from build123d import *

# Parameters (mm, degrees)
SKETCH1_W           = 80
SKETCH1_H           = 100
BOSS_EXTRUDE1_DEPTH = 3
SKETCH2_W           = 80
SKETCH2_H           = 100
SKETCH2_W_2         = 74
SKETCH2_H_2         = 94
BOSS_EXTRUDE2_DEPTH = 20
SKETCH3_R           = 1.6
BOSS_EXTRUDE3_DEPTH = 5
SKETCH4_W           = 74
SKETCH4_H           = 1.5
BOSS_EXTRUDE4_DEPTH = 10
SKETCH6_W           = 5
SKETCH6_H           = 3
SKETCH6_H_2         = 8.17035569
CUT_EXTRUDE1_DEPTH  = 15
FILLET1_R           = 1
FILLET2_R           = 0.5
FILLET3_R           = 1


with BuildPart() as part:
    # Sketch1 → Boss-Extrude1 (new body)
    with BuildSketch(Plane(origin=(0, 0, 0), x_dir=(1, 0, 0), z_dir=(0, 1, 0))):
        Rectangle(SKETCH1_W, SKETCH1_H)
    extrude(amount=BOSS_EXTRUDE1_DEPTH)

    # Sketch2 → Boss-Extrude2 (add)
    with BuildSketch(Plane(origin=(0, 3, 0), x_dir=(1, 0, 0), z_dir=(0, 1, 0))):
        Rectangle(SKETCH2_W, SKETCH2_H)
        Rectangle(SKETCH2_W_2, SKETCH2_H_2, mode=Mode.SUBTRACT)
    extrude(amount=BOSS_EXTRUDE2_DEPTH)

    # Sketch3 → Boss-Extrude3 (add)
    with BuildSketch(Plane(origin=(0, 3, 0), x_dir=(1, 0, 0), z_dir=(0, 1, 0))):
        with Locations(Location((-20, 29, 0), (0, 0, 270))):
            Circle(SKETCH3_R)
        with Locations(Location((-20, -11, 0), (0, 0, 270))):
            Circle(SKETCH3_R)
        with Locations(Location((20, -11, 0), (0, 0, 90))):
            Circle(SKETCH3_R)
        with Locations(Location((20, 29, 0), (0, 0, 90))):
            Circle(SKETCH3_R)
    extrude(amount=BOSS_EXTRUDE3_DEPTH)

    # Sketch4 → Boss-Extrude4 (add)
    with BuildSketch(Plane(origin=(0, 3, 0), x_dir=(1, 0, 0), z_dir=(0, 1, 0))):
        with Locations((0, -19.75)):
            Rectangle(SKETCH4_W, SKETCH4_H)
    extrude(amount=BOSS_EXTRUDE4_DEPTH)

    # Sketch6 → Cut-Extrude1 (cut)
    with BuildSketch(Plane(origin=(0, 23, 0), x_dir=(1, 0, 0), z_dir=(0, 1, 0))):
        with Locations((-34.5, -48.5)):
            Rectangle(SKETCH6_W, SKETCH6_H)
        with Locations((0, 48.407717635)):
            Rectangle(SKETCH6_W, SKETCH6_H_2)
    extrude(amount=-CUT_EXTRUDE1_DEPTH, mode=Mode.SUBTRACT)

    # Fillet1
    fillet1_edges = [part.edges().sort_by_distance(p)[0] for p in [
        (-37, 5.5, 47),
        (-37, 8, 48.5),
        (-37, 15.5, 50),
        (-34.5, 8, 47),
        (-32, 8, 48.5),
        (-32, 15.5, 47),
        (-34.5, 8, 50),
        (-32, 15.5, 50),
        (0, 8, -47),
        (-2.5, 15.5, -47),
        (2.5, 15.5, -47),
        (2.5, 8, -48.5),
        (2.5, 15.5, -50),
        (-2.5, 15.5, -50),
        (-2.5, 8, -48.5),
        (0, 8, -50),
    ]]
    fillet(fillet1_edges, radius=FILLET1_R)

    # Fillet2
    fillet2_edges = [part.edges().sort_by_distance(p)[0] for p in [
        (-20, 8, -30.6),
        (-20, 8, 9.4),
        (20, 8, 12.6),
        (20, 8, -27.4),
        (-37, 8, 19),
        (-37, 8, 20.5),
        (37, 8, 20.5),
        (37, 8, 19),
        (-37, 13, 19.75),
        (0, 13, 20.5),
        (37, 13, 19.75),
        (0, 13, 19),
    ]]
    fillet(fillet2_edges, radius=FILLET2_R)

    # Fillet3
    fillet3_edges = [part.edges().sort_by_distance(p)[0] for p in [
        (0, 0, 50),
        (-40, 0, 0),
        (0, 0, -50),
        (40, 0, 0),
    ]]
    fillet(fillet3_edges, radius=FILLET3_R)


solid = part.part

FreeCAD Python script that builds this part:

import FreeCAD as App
import Part
import Sketcher
Q = App.Units.Quantity


def edges_at(feature, points):
    """Names of the edges that pass closest to the given points."""
    edges = feature.Shape.Edges
    near = lambda p: min(range(len(edges)), key=lambda i: edges[i].distToShape(Part.Vertex(*p))[0])
    return sorted({f"Edge{near(p) + 1}" for p in points})

doc = App.newDocument("Part")
body = doc.addObject("PartDesign::Body", "Body")

# Sketch on XZ plane
sketch1 = doc.addObject("Sketcher::SketchObject", "Sketch")
body.addObject(sketch1)
sketch1.AttachmentSupport = (doc.XZ_Plane, [""])
sketch1.MapMode = "FlatFace"
sketch1.addGeometry(Part.LineSegment(App.Vector(-40, -50, 0), App.Vector(-40, 50, 0)), False)
sketch1.addGeometry(Part.LineSegment(App.Vector(-40, 50, 0), App.Vector(40, 50, 0)), False)
sketch1.addGeometry(Part.LineSegment(App.Vector(40, 50, 0), App.Vector(40, -50, 0)), False)
sketch1.addGeometry(Part.LineSegment(App.Vector(40, -50, 0), App.Vector(-40, -50, 0)), False)
sketch1.addConstraint(Sketcher.Constraint("Coincident", 0, 2, 1, 1))
sketch1.addConstraint(Sketcher.Constraint("Coincident", 1, 2, 2, 1))
sketch1.addConstraint(Sketcher.Constraint("Coincident", 2, 2, 3, 1))
sketch1.addConstraint(Sketcher.Constraint("Coincident", 3, 2, 0, 1))
sketch1.addConstraint(Sketcher.Constraint("Vertical", 0))
sketch1.addConstraint(Sketcher.Constraint("Horizontal", 1))
sketch1.addConstraint(Sketcher.Constraint("Vertical", 2))
sketch1.addConstraint(Sketcher.Constraint("Horizontal", 3))
sketch1.addConstraint(Sketcher.Constraint("Symmetric", 0, 2, 2, 2, -1, 1))
sketch1.addConstraint(Sketcher.Constraint("DistanceX", 1, 1, 1, 2, Q("80 mm")))
sketch1.addConstraint(Sketcher.Constraint("DistanceY", 0, 1, 0, 2, Q("100 mm")))
pad1 = doc.addObject("PartDesign::Pad", "Pad")
body.addObject(pad1)
pad1.Profile = sketch1
pad1.Length = 3
pad1.Reversed = True

# Sketch on XZ plane
sketch2 = doc.addObject("Sketcher::SketchObject", "Sketch001")
body.addObject(sketch2)
sketch2.AttachmentSupport = (doc.XZ_Plane, [""])
sketch2.MapMode = "FlatFace"
sketch2.AttachmentOffset = App.Placement(App.Vector(0, 0, -3), App.Rotation())
sketch2.addGeometry(Part.LineSegment(App.Vector(-40, -50, 0), App.Vector(-40, 50, 0)), False)
sketch2.addGeometry(Part.LineSegment(App.Vector(-40, 50, 0), App.Vector(40, 50, 0)), False)
sketch2.addGeometry(Part.LineSegment(App.Vector(40, 50, 0), App.Vector(40, -50, 0)), False)
sketch2.addGeometry(Part.LineSegment(App.Vector(40, -50, 0), App.Vector(-40, -50, 0)), False)
sketch2.addGeometry(Part.LineSegment(App.Vector(37, 47, 0), App.Vector(-37, 47, 0)), False)
sketch2.addGeometry(Part.LineSegment(App.Vector(-37, 47, 0), App.Vector(-37, -47, 0)), False)
sketch2.addGeometry(Part.LineSegment(App.Vector(-37, -47, 0), App.Vector(37, -47, 0)), False)
sketch2.addGeometry(Part.LineSegment(App.Vector(37, -47, 0), App.Vector(37, 47, 0)), False)
sketch2.addConstraint(Sketcher.Constraint("Coincident", 0, 2, 1, 1))
sketch2.addConstraint(Sketcher.Constraint("Coincident", 1, 2, 2, 1))
sketch2.addConstraint(Sketcher.Constraint("Coincident", 2, 2, 3, 1))
sketch2.addConstraint(Sketcher.Constraint("Coincident", 3, 2, 0, 1))
sketch2.addConstraint(Sketcher.Constraint("Coincident", 4, 2, 5, 1))
sketch2.addConstraint(Sketcher.Constraint("Coincident", 5, 2, 6, 1))
sketch2.addConstraint(Sketcher.Constraint("Coincident", 6, 2, 7, 1))
sketch2.addConstraint(Sketcher.Constraint("Coincident", 7, 2, 4, 1))
sketch2.addConstraint(Sketcher.Constraint("Vertical", 0))
sketch2.addConstraint(Sketcher.Constraint("Horizontal", 1))
sketch2.addConstraint(Sketcher.Constraint("Vertical", 2))
sketch2.addConstraint(Sketcher.Constraint("Horizontal", 3))
sketch2.addConstraint(Sketcher.Constraint("Horizontal", 4))
sketch2.addConstraint(Sketcher.Constraint("Vertical", 5))
sketch2.addConstraint(Sketcher.Constraint("Horizontal", 6))
sketch2.addConstraint(Sketcher.Constraint("Vertical", 7))
sketch2.addConstraint(Sketcher.Constraint("Symmetric", 0, 2, 2, 2, -1, 1))
sketch2.addConstraint(Sketcher.Constraint("Symmetric", 4, 2, 6, 2, -1, 1))
sketch2.addConstraint(Sketcher.Constraint("DistanceX", 1, 1, 1, 2, Q("80 mm")))
sketch2.addConstraint(Sketcher.Constraint("DistanceX", 4, 2, 4, 1, Q("74 mm")))
sketch2.addConstraint(Sketcher.Constraint("DistanceY", 0, 1, 0, 2, Q("100 mm")))
sketch2.addConstraint(Sketcher.Constraint("DistanceY", 5, 2, 5, 1, Q("94 mm")))
pad2 = doc.addObject("PartDesign::Pad", "Pad001")
body.addObject(pad2)
pad2.Profile = sketch2
pad2.Length = 20
pad2.Reversed = True

# Sketch on XZ plane
sketch3 = doc.addObject("Sketcher::SketchObject", "Sketch002")
body.addObject(sketch3)
sketch3.AttachmentSupport = (doc.XZ_Plane, [""])
sketch3.MapMode = "FlatFace"
sketch3.AttachmentOffset = App.Placement(App.Vector(0, 0, -3), App.Rotation())
sketch3.addGeometry(Part.Circle(App.Vector(-20, -29, 0), App.Vector(0, 0, 1), 1.6), False)
sketch3.addGeometry(Part.Circle(App.Vector(-20, 11, 0), App.Vector(0, 0, 1), 1.6), False)
sketch3.addGeometry(Part.Circle(App.Vector(20, 11, 0), App.Vector(0, 0, 1), 1.6), False)
sketch3.addGeometry(Part.Circle(App.Vector(20, -29, 0), App.Vector(0, 0, 1), 1.6), False)
sketch3.addConstraint(Sketcher.Constraint("Equal", 0, 1))
sketch3.addConstraint(Sketcher.Constraint("Equal", 1, 2))
sketch3.addConstraint(Sketcher.Constraint("Equal", 2, 3))
sketch3.addConstraint(Sketcher.Constraint("Symmetric", 1, 3, 2, 3, -2))
sketch3.addConstraint(Sketcher.Constraint("Symmetric", 0, 3, 3, 3, -2))
sketch3.addConstraint(Sketcher.Constraint("Vertical", 0, 3, 1, 3))
sketch3.addConstraint(Sketcher.Constraint("Diameter", 0, Q("3.2 mm")))
sketch3.addConstraint(Sketcher.Constraint("DistanceX", 0, 3, -1, 1, Q("20 mm")))
sketch3.addConstraint(Sketcher.Constraint("DistanceY", 0, 3, -1, 1, Q("29 mm")))
sketch3.addConstraint(Sketcher.Constraint("DistanceY", -1, 1, 1, 3, Q("11 mm")))
pad3 = doc.addObject("PartDesign::Pad", "Pad002")
body.addObject(pad3)
pad3.Profile = sketch3
pad3.Length = 5
pad3.Reversed = True

# Sketch on XZ plane
sketch4 = doc.addObject("Sketcher::SketchObject", "Sketch003")
body.addObject(sketch4)
sketch4.AttachmentSupport = (doc.XZ_Plane, [""])
sketch4.MapMode = "FlatFace"
sketch4.AttachmentOffset = App.Placement(App.Vector(0, 0, -3), App.Rotation())
sketch4.addGeometry(Part.LineSegment(App.Vector(-37, 19, 0), App.Vector(-37, 20.5, 0)), False)
sketch4.addGeometry(Part.LineSegment(App.Vector(-37, 20.5, 0), App.Vector(37, 20.5, 0)), False)
sketch4.addGeometry(Part.LineSegment(App.Vector(37, 20.5, 0), App.Vector(37, 19, 0)), False)
sketch4.addGeometry(Part.LineSegment(App.Vector(37, 19, 0), App.Vector(-37, 19, 0)), False)
sketch4.addConstraint(Sketcher.Constraint("Coincident", 0, 2, 1, 1))
sketch4.addConstraint(Sketcher.Constraint("Coincident", 1, 2, 2, 1))
sketch4.addConstraint(Sketcher.Constraint("Coincident", 2, 2, 3, 1))
sketch4.addConstraint(Sketcher.Constraint("Coincident", 3, 2, 0, 1))
sketch4.addConstraint(Sketcher.Constraint("Vertical", 0))
sketch4.addConstraint(Sketcher.Constraint("Horizontal", 1))
sketch4.addConstraint(Sketcher.Constraint("Vertical", 2))
sketch4.addConstraint(Sketcher.Constraint("Horizontal", 3))
sketch4.addConstraint(Sketcher.Constraint("DistanceX", 1, 1, 1, 2, Q("74 mm")))
sketch4.addConstraint(Sketcher.Constraint("DistanceY", 0, 1, 0, 2, Q("1.5 mm")))
sketch4.addConstraint(Sketcher.Constraint("DistanceX", 0, 2, -1, 1, Q("37 mm")))
sketch4.addConstraint(Sketcher.Constraint("DistanceY", -1, 1, 2, 2, Q("19 mm")))
pad4 = doc.addObject("PartDesign::Pad", "Pad003")
body.addObject(pad4)
pad4.Profile = sketch4
pad4.Length = 10
pad4.Reversed = True

# Sketch on XZ plane
sketch5 = doc.addObject("Sketcher::SketchObject", "Sketch004")
body.addObject(sketch5)
sketch5.AttachmentSupport = (doc.XZ_Plane, [""])
sketch5.MapMode = "FlatFace"
sketch5.AttachmentOffset = App.Placement(App.Vector(0, 0, -23), App.Rotation())
sketch5.addGeometry(Part.LineSegment(App.Vector(-37, 47, 0), App.Vector(-37, 50, 0)), False)
sketch5.addGeometry(Part.LineSegment(App.Vector(-37, 50, 0), App.Vector(-32, 50, 0)), False)
sketch5.addGeometry(Part.LineSegment(App.Vector(-32, 50, 0), App.Vector(-32, 47, 0)), False)
sketch5.addGeometry(Part.LineSegment(App.Vector(-32, 47, 0), App.Vector(-37, 47, 0)), False)
sketch5.addGeometry(Part.LineSegment(App.Vector(-2.5, -52.492895, 0), App.Vector(-2.5, -44.32254, 0)), False)
sketch5.addGeometry(Part.LineSegment(App.Vector(-2.5, -44.32254, 0), App.Vector(2.5, -44.32254, 0)), False)
sketch5.addGeometry(Part.LineSegment(App.Vector(2.5, -44.32254, 0), App.Vector(2.5, -52.492895, 0)), False)
sketch5.addGeometry(Part.LineSegment(App.Vector(2.5, -52.492895, 0), App.Vector(-2.5, -52.492895, 0)), False)
sketch5.addConstraint(Sketcher.Constraint("Coincident", 0, 2, 1, 1))
sketch5.addConstraint(Sketcher.Constraint("Coincident", 1, 2, 2, 1))
sketch5.addConstraint(Sketcher.Constraint("Coincident", 2, 2, 3, 1))
sketch5.addConstraint(Sketcher.Constraint("Coincident", 3, 2, 0, 1))
sketch5.addConstraint(Sketcher.Constraint("Coincident", 4, 2, 5, 1))
sketch5.addConstraint(Sketcher.Constraint("Coincident", 5, 2, 6, 1))
sketch5.addConstraint(Sketcher.Constraint("Coincident", 6, 2, 7, 1))
sketch5.addConstraint(Sketcher.Constraint("Coincident", 7, 2, 4, 1))
sketch5.addConstraint(Sketcher.Constraint("Vertical", 0))
sketch5.addConstraint(Sketcher.Constraint("Horizontal", 1))
sketch5.addConstraint(Sketcher.Constraint("Vertical", 2))
sketch5.addConstraint(Sketcher.Constraint("Horizontal", 3))
sketch5.addConstraint(Sketcher.Constraint("Vertical", 4))
sketch5.addConstraint(Sketcher.Constraint("Horizontal", 5))
sketch5.addConstraint(Sketcher.Constraint("Vertical", 6))
sketch5.addConstraint(Sketcher.Constraint("Horizontal", 7))
sketch5.addConstraint(Sketcher.Constraint("Equal", 3, 5))
sketch5.addConstraint(Sketcher.Constraint("DistanceX", 1, 1, 1, 2, Q("5 mm")))
sketch5.addConstraint(Sketcher.Constraint("DistanceY", 0, 1, 0, 2, Q("3 mm")))
sketch5.addConstraint(Sketcher.Constraint("DistanceX", 0, 2, -1, 1, Q("37 mm")))
sketch5.addConstraint(Sketcher.Constraint("DistanceY", -1, 1, 0, 2, Q("50 mm")))
sketch5.addConstraint(Sketcher.Constraint("DistanceX", 4, 2, -1, 1, Q("2.5 mm")))
sketch5.addConstraint(Sketcher.Constraint("DistanceY", 4, 1, 4, 2, Q("8.170356 mm")))
sketch5.addConstraint(Sketcher.Constraint("DistanceY", 4, 2, -1, 1, Q("44.32254 mm")))
pocket1 = doc.addObject("PartDesign::Pocket", "Pocket")
body.addObject(pocket1)
pocket1.Profile = sketch5
pocket1.Length = 15
pocket1.Reversed = True
doc.recompute()

fillet = doc.addObject("PartDesign::Fillet", "Fillet")
body.addObject(fillet)
fillet.Base = (pocket1, edges_at(pocket1, [
    (-37, 5.5, 47),
    (-37, 8, 48.5),
    (-37, 15.5, 50),
    (-34.5, 8, 47),
    (-32, 8, 48.5),
    (-32, 15.5, 47),
    (-34.5, 8, 50),
    (-32, 15.5, 50),
    (0, 8, -47),
    (-2.5, 15.5, -47),
    (2.5, 15.5, -47),
    (2.5, 8, -48.5),
    (2.5, 15.5, -50),
    (-2.5, 15.5, -50),
    (-2.5, 8, -48.5),
    (0, 8, -50),
]))
fillet.Radius = 1
doc.recompute()

fillet2 = doc.addObject("PartDesign::Fillet", "Fillet001")
body.addObject(fillet2)
fillet2.Base = (fillet, edges_at(fillet, [
    (-20, 8, -30.6),
    (-20, 8, 9.4),
    (20, 8, 12.6),
    (20, 8, -27.4),
    (-37, 8, 19),
    (-37, 8, 20.5),
    (37, 8, 20.5),
    (37, 8, 19),
    (-37, 13, 19.75),
    (0, 13, 20.5),
    (37, 13, 19.75),
    (0, 13, 19),
]))
fillet2.Radius = 0.5
doc.recompute()

fillet3 = doc.addObject("PartDesign::Fillet", "Fillet002")
body.addObject(fillet3)
fillet3.Base = (fillet2, edges_at(fillet2, [
    (0, 0, 50),
    (-40, 0, 0),
    (0, 0, -50),
    (40, 0, 0),
]))
fillet3.Radius = 1

doc.recompute()
